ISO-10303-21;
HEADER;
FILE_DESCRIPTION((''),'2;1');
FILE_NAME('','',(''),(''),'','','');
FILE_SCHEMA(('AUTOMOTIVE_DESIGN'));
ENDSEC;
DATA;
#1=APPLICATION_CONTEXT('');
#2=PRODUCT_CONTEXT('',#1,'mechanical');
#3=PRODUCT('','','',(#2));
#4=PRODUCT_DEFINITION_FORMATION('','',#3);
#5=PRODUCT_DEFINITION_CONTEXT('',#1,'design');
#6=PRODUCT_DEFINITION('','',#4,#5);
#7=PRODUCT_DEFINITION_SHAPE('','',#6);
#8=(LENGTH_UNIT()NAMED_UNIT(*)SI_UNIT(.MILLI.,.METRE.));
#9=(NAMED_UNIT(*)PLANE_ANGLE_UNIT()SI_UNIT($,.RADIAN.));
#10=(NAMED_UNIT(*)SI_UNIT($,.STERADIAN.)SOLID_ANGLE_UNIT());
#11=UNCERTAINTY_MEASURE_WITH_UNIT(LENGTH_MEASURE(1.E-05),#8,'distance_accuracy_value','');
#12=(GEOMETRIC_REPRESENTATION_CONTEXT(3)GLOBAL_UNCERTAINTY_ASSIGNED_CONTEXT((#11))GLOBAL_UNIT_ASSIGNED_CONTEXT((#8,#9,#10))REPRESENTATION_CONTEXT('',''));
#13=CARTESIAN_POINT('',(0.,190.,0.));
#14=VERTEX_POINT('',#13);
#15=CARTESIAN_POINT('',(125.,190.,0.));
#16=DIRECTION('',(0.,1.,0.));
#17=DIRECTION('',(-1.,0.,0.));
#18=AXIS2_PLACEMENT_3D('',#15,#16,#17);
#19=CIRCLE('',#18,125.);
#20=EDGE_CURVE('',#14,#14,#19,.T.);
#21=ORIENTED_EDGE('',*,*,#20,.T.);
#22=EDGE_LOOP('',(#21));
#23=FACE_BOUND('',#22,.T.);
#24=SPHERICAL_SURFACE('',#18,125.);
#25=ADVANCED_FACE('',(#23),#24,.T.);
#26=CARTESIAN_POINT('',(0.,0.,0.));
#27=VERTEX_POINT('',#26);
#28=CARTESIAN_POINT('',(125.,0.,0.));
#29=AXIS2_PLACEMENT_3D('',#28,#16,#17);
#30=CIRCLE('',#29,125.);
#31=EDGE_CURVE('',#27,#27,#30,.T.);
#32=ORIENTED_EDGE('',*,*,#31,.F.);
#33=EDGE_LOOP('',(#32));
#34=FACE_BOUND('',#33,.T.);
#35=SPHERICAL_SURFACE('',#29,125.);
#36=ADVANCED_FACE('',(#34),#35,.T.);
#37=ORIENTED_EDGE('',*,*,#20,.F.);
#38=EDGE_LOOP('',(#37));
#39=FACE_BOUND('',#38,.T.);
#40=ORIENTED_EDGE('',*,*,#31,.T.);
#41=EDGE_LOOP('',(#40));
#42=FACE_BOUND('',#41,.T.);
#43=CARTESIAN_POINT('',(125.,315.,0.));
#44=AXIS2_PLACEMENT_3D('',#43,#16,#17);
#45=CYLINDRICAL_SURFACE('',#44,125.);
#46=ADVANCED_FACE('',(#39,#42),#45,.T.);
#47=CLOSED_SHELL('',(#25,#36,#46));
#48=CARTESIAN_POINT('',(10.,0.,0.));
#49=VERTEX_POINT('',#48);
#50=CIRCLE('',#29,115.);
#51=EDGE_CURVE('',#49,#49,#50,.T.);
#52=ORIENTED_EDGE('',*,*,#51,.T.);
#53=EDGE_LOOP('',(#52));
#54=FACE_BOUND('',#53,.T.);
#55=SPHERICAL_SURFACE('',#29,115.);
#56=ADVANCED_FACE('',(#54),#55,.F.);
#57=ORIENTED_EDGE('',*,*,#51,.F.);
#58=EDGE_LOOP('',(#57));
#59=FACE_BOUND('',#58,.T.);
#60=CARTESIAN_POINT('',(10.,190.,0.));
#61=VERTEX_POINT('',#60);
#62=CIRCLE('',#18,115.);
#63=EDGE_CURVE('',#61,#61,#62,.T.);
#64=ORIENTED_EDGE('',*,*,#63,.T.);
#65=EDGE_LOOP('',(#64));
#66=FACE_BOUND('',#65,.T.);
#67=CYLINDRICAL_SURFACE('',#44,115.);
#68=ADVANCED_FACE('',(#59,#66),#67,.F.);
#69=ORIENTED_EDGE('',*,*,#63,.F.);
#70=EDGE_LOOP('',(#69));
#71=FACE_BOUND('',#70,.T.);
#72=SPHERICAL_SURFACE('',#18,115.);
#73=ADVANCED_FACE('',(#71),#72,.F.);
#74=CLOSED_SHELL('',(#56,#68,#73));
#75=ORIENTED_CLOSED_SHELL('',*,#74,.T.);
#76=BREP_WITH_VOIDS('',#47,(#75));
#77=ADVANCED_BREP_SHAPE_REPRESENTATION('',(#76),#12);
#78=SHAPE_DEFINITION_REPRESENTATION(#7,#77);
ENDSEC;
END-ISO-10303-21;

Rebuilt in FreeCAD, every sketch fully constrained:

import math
import FreeCAD as App
import Part
import Sketcher

V = App.Vector
Q = App.Units.Quantity

doc = App.newDocument("Part")
params = doc.addObject("Spreadsheet::Sheet", "Params")
for row, (alias, value) in enumerate([
    ("sketch1_radius", "125 mm"),
    ("sketch1_radius2", "115 mm"),
    ("sketch1_height", "190 mm"),
    ("revolution_angle", "360 deg"),
], start=1):
    params.set(f"A{row}", alias)
    params.set(f"B{row}", "=" + value)
    params.setAlias(f"B{row}", alias)

body = doc.addObject("PartDesign::Body", "Body")

# Sketch on XY plane
sketch1 = doc.addObject("Sketcher::SketchObject", "Sketch")
body.addObject(sketch1)
sketch1.AttachmentSupport = (doc.XY_Plane, [""])
sketch1.MapMode = "FlatFace"
sketch1.addGeometry(Part.LineSegment(V(0, 190, 0), V(0, 0, 0)), False)
sketch1.addGeometry(Part.ArcOfCircle(Part.Circle(V(125, 0, 0), V(0, 0, 1), 125), math.radians(-180), math.radians(-90)), False)
sketch1.addGeometry(Part.LineSegment(V(125, -125, 0), V(125, -115, 0)), False)
sketch1.addGeometry(Part.ArcOfCircle(Part.Circle(V(125, 0, 0), V(0, 0, 1), 115), math.radians(-180), math.radians(-90)), False)
sketch1.addGeometry(Part.LineSegment(V(10, 0, 0), V(10, 190, 0)), False)
sketch1.addGeometry(Part.ArcOfCircle(Part.Circle(V(125, 190, 0), V(0, 0, 1), 115), math.radians(90), math.radians(180)), False)
sketch1.addGeometry(Part.LineSegment(V(125, 305, 0), V(125, 315, 0)), False)
sketch1.addGeometry(Part.ArcOfCircle(Part.Circle(V(125, 190, 0), V(0, 0, 1), 125), math.radians(90), math.radians(180)), False)
sketch1.addGeometry(Part.LineSegment(V(125, 315, 0), V(125, -125, 0)), True)  # axis
sketch1.addConstraint(Sketcher.Constraint("Tangent", 0, 2, 1, 1))
sketch1.addConstraint(Sketcher.Constraint("Coincident", 1, 2, 2, 1))
sketch1.addConstraint(Sketcher.Constraint("Coincident", 2, 2, 3, 2))
sketch1.addConstraint(Sketcher.Constraint("Tangent", 3, 1, 4, 1))
sketch1.addConstraint(Sketcher.Constraint("Tangent", 4, 2, 5, 2))
sketch1.addConstraint(Sketcher.Constraint("Coincident", 5, 1, 6, 1))
sketch1.addConstraint(Sketcher.Constraint("Coincident", 6, 2, 7, 1))
sketch1.addConstraint(Sketcher.Constraint("Tangent", 7, 2, 0, 1))
sketch1.addConstraint(Sketcher.Constraint("Vertical", 0))
sketch1.addConstraint(Sketcher.Constraint("Vertical", 2))
sketch1.addConstraint(Sketcher.Constraint("Vertical", 4))
sketch1.addConstraint(Sketcher.Constraint("Vertical", 6))
sketch1.addConstraint(Sketcher.Constraint("Vertical", 8))
sketch1.addConstraint(Sketcher.Constraint("Coincident", 0, 2, -1, 1))
sketch1.addConstraint(Sketcher.Constraint("Coincident", 3, 3, 1, 3))
sketch1.addConstraint(Sketcher.Constraint("Coincident", 7, 3, 5, 3))
sketch1.addConstraint(Sketcher.Constraint("Coincident", 8, 1, 6, 2))
sketch1.addConstraint(Sketcher.Constraint("Coincident", 8, 2, 1, 2))
sketch1.addConstraint(Sketcher.Constraint("Equal", 3, 5))
sketch1.addConstraint(Sketcher.Constraint("Vertical", 7, 3, 1, 2))
sketch1.addConstraint(Sketcher.Constraint("Radius", 1, Q("125 mm")))
sketch1.addConstraint(Sketcher.Constraint("Radius", 3, Q("115 mm")))
sketch1.addConstraint(Sketcher.Constraint("DistanceY", 0, 2, 0, 1, Q("190 mm")))
sketch1.setExpression("Constraints[20]", "Params.sketch1_radius")
sketch1.setExpression("Constraints[21]", "Params.sketch1_radius2")
sketch1.setExpression("Constraints[22]", "Params.sketch1_height")
revolution = doc.addObject("PartDesign::Revolution", "Revolution")
body.addObject(revolution)
revolution.Profile = sketch1
revolution.ReferenceAxis = (sketch1, ["Axis0"])
revolution.setExpression("Angle", "Params.revolution_angle")

doc.recompute()
